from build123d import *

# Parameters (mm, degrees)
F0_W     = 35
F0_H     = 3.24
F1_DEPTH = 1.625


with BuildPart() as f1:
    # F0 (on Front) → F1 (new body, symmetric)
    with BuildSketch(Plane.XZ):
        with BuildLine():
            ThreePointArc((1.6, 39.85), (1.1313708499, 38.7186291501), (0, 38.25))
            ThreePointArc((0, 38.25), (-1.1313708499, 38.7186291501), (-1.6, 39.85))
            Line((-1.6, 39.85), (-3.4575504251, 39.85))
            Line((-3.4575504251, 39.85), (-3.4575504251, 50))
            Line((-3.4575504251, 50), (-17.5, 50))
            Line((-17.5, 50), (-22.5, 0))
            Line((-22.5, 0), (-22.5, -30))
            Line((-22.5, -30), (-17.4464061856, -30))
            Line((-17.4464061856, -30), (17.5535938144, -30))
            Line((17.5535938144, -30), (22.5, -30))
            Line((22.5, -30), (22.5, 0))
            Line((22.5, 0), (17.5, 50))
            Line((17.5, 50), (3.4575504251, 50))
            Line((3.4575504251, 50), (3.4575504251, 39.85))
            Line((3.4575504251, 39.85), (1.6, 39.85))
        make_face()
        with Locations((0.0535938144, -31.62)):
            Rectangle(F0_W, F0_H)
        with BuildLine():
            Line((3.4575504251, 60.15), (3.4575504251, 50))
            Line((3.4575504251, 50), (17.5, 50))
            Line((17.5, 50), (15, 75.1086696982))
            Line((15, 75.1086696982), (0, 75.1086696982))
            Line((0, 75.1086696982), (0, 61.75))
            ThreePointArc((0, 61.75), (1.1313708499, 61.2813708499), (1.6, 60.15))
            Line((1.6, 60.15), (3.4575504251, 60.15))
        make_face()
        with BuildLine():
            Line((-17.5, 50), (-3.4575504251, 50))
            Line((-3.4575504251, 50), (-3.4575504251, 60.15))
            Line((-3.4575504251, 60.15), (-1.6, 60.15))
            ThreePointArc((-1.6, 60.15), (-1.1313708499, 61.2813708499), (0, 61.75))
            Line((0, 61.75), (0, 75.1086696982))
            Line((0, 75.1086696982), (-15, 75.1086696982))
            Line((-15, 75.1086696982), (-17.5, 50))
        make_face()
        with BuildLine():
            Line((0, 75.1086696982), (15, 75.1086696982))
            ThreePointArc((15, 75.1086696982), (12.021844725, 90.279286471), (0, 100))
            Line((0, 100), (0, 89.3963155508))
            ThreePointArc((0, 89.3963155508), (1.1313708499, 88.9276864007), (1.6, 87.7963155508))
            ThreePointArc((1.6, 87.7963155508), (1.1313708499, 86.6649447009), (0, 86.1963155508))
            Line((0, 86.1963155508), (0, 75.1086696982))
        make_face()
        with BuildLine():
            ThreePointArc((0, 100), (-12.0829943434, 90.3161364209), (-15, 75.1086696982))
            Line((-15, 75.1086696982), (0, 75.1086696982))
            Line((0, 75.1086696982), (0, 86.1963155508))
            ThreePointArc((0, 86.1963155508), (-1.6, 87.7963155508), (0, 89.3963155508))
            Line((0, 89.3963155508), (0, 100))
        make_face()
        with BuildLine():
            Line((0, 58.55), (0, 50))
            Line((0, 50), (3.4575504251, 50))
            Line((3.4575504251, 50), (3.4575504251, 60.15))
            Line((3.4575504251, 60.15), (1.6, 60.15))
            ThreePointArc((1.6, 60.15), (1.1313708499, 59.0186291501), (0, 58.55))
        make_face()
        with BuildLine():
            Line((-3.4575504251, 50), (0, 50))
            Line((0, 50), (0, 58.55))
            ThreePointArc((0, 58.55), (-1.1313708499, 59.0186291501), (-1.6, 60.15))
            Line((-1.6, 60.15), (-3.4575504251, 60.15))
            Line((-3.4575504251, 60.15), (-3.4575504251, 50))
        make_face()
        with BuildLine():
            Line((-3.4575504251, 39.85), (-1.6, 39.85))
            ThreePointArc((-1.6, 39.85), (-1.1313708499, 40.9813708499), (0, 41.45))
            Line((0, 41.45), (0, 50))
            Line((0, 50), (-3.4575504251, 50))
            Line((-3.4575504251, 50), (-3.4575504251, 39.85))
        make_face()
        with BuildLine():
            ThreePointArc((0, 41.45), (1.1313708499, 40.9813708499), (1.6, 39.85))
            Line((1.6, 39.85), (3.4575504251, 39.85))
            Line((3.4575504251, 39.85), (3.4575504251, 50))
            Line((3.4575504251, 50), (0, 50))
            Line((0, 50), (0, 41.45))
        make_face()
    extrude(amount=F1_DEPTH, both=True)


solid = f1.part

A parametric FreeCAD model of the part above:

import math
import FreeCAD as App
import Part
import Sketcher

doc = App.newDocument("Part")
body = doc.addObject("PartDesign::Body", "Body")

sketch1 = body.newObject("Sketcher::SketchObject", "Sketch")
sketch1.AttachmentSupport = (doc.getObject("XZ_Plane"), [""])
sketch1.MapMode = "FlatFace"
sketch1.addGeometry([
    Part.LineSegment(App.Vector(-17.5, 50, 0), App.Vector(-22.5, 0, 0)),
    Part.LineSegment(App.Vector(-22.5, 0, 0), App.Vector(-22.5, -30, 0)),
    Part.LineSegment(App.Vector(-22.5, -30, 0), App.Vector(-17.446406, -30, 0)),
    Part.LineSegment(App.Vector(-17.446406, -30, 0), App.Vector(-17.446406, -33.24, 0)),
    Part.LineSegment(App.Vector(-17.446406, -33.24, 0), App.Vector(17.553594, -33.24, 0)),
    Part.LineSegment(App.Vector(17.553594, -33.24, 0), App.Vector(17.553594, -30, 0)),
    Part.LineSegment(App.Vector(17.553594, -30, 0), App.Vector(22.5, -30, 0)),
    Part.LineSegment(App.Vector(22.5, -30, 0), App.Vector(22.5, 0, 0)),
    Part.LineSegment(App.Vector(22.5, 0, 0), App.Vector(17.5, 50, 0)),
    Part.LineSegment(App.Vector(17.5, 50, 0), App.Vector(15, 75.10867, 0)),
    Part.ArcOfCircle(Part.Circle(App.Vector(-7.366444, 78.595527, 0), App.Vector(0, 0, 1), 22.636607), math.radians(-8.860903), math.radians(71.008873)),
    Part.ArcOfCircle(Part.Circle(App.Vector(7.107343, 78.751666, 0), App.Vector(0, 0, 1), 22.405491), math.radians(108.494544), math.radians(189.357487)),
    Part.LineSegment(App.Vector(-15, 75.10867, 0), App.Vector(-17.5, 50, 0)),
    Part.ArcOfCircle(Part.Circle(App.Vector(0, 39.85, 0), App.Vector(0, 0, 1), 1.6), math.radians(-90), math.radians(0)),
    Part.ArcOfCircle(Part.Circle(App.Vector(0, 39.85, 0), App.Vector(0, 0, 1), 1.6), math.radians(180), math.radians(270)),
    Part.ArcOfCircle(Part.Circle(App.Vector(0, 39.85, 0), App.Vector(0, 0, 1), 1.6), math.radians(90), math.radians(180)),
    Part.ArcOfCircle(Part.Circle(App.Vector(0, 39.85, 0), App.Vector(0, 0, 1), 1.6), math.radians(0), math.radians(90)),
    Part.ArcOfCircle(Part.Circle(App.Vector(0, 60.15, 0), App.Vector(0, 0, 1), 1.6), math.radians(90), math.radians(180)),
    Part.ArcOfCircle(Part.Circle(App.Vector(0, 60.15, 0), App.Vector(0, 0, 1), 1.6), math.radians(0), math.radians(90)),
    Part.ArcOfCircle(Part.Circle(App.Vector(0, 60.15, 0), App.Vector(0, 0, 1), 1.6), math.radians(-90), math.radians(0)),
    Part.ArcOfCircle(Part.Circle(App.Vector(0, 60.15, 0), App.Vector(0, 0, 1), 1.6), math.radians(180), math.radians(270)),
    Part.ArcOfCircle(Part.Circle(App.Vector(0, 87.796316, 0), App.Vector(0, 0, 1), 1.6), math.radians(0), math.radians(90)),
    Part.ArcOfCircle(Part.Circle(App.Vector(0, 87.796316, 0), App.Vector(0, 0, 1), 1.6), math.radians(-90), math.radians(0)),
    Part.ArcOfCircle(Part.Circle(App.Vector(0, 87.796316, 0), App.Vector(0, 0, 1), 1.6), math.radians(90), math.radians(270)),
], False)
sketch1.addConstraint([
    Sketcher.Constraint("Coincident", 0, 2, 1, 1),
    Sketcher.Constraint("Coincident", 1, 2, 2, 1),
    Sketcher.Constraint("Coincident", 2, 2, 3, 1),
    Sketcher.Constraint("Coincident", 3, 2, 4, 1),
    Sketcher.Constraint("Coincident", 4, 2, 5, 1),
    Sketcher.Constraint("Coincident", 5, 2, 6, 1),
    Sketcher.Constraint("Coincident", 6, 2, 7, 1),
    Sketcher.Constraint("Coincident", 7, 2, 8, 1),
    Sketcher.Constraint("Coincident", 8, 2, 9, 1),
    Sketcher.Constraint("Coincident", 9, 2, 10, 1),
    Sketcher.Constraint("Coincident", 10, 2, 11, 1),
    Sketcher.Constraint("Coincident", 11, 2, 12, 1),
    Sketcher.Constraint("Coincident", 12, 2, 0, 1),
    Sketcher.Constraint("Tangent", 13, 1, 14, 2),
    Sketcher.Constraint("Tangent", 14, 1, 15, 2),
    Sketcher.Constraint("Tangent", 15, 1, 16, 2),
    Sketcher.Constraint("Tangent", 16, 1, 13, 2),
    Sketcher.Constraint("Tangent", 17, 1, 18, 2),
    Sketcher.Constraint("Tangent", 18, 1, 19, 2),
    Sketcher.Constraint("Tangent", 19, 1, 20, 2),
    Sketcher.Constraint("Tangent", 20, 1, 17, 2),
    Sketcher.Constraint("Tangent", 21, 1, 22, 2),
    Sketcher.Constraint("Tangent", 22, 1, 23, 2),
    Sketcher.Constraint("Tangent", 23, 1, 21, 2),
    Sketcher.Constraint("Vertical", 1),
    Sketcher.Constraint("Horizontal", 2),
    Sketcher.Constraint("Vertical", 3),
    Sketcher.Constraint("Horizontal", 4),
    Sketcher.Constraint("Vertical", 5),
    Sketcher.Constraint("Horizontal", 6),
    Sketcher.Constraint("Vertical", 7),
    Sketcher.Constraint("Equal", 13, 14),
    Sketcher.Constraint("Equal", 16, 17),
    Sketcher.Constraint("Equal", 17, 18),
    Sketcher.Constraint("Equal", 20, 21),
    Sketcher.Constraint("Symmetric", 0, 2, 7, 2, -1, 1),
    Sketcher.Constraint("Symmetric", 9, 2, 11, 2, -2),
    Sketcher.Constraint("Symmetric", 8, 2, 12, 2, -2),
    Sketcher.Constraint("Symmetric", 14, 1, 16, 1, -2),
    Sketcher.Constraint("Symmetric", 18, 1, 20, 1, -2),
    Sketcher.Constraint("PointOnObject", 21, 3, -2),
    Sketcher.Constraint("PointOnObject", 0, 2, -1),
    Sketcher.Constraint("PointOnObject", 10, 2, -2),
    Sketcher.Constraint("PointOnObject", 13, 1, -2),
    Sketcher.Constraint("PointOnObject", 15, 1, -2),
    Sketcher.Constraint("PointOnObject", 17, 1, -2),
    Sketcher.Constraint("PointOnObject", 19, 1, -2),
    Sketcher.Constraint("PointOnObject", 22, 1, -2),
    Sketcher.Constraint("PointOnObject", 23, 1, -2),
    Sketcher.Constraint("Horizontal", 2, 2, 5, 2),
    Sketcher.Constraint("Horizontal", 16, 3, 14, 1),
    Sketcher.Constraint("Horizontal", 20, 3, 18, 1),
    Sketcher.Constraint("Horizontal", 23, 3, 21, 1),
    Sketcher.Constraint("Radius", 13, 1.6),
    Sketcher.Constraint("DistanceX", 4, 1, 4, 2, 35.0),
    Sketcher.Constraint("DistanceY", 1, 2, 1, 1, 30.0),
    Sketcher.Constraint("DistanceY", -1, 1, 8, 2, 50.0),
    Sketcher.Constraint("DistanceX", -1, 1, 9, 2, 15.0),
    Sketcher.Constraint("DistanceY", -1, 1, 10, 2, 100.0),
    Sketcher.Constraint("DistanceX", 1, 2, 6, 2, 45.0),
    Sketcher.Constraint("DistanceY", 3, 2, 3, 1, 3.24),
    Sketcher.Constraint("DistanceX", -1, 1, 8, 2, 17.5),
    Sketcher.Constraint("DistanceY", 13, 3, 17, 3, 20.3),
    Sketcher.Constraint("DistanceY", -1, 1, 13, 3, 39.85),
    Sketcher.Constraint("Radius", 11, 22.405491),
    Sketcher.Constraint("Radius", 10, 22.636607),
    Sketcher.Constraint("Distance", 9, 25.232822),
    Sketcher.Constraint("DistanceX", 2, 1, 2, 2, 5.053594),
    Sketcher.Constraint("DistanceY", 11, 3, 21, 3, 9.04465),
])
pad1 = body.newObject("PartDesign::Pad", "Pad")
pad1.Profile = sketch1
pad1.Length = 3.25
pad1.Midplane = True

doc.recompute()
